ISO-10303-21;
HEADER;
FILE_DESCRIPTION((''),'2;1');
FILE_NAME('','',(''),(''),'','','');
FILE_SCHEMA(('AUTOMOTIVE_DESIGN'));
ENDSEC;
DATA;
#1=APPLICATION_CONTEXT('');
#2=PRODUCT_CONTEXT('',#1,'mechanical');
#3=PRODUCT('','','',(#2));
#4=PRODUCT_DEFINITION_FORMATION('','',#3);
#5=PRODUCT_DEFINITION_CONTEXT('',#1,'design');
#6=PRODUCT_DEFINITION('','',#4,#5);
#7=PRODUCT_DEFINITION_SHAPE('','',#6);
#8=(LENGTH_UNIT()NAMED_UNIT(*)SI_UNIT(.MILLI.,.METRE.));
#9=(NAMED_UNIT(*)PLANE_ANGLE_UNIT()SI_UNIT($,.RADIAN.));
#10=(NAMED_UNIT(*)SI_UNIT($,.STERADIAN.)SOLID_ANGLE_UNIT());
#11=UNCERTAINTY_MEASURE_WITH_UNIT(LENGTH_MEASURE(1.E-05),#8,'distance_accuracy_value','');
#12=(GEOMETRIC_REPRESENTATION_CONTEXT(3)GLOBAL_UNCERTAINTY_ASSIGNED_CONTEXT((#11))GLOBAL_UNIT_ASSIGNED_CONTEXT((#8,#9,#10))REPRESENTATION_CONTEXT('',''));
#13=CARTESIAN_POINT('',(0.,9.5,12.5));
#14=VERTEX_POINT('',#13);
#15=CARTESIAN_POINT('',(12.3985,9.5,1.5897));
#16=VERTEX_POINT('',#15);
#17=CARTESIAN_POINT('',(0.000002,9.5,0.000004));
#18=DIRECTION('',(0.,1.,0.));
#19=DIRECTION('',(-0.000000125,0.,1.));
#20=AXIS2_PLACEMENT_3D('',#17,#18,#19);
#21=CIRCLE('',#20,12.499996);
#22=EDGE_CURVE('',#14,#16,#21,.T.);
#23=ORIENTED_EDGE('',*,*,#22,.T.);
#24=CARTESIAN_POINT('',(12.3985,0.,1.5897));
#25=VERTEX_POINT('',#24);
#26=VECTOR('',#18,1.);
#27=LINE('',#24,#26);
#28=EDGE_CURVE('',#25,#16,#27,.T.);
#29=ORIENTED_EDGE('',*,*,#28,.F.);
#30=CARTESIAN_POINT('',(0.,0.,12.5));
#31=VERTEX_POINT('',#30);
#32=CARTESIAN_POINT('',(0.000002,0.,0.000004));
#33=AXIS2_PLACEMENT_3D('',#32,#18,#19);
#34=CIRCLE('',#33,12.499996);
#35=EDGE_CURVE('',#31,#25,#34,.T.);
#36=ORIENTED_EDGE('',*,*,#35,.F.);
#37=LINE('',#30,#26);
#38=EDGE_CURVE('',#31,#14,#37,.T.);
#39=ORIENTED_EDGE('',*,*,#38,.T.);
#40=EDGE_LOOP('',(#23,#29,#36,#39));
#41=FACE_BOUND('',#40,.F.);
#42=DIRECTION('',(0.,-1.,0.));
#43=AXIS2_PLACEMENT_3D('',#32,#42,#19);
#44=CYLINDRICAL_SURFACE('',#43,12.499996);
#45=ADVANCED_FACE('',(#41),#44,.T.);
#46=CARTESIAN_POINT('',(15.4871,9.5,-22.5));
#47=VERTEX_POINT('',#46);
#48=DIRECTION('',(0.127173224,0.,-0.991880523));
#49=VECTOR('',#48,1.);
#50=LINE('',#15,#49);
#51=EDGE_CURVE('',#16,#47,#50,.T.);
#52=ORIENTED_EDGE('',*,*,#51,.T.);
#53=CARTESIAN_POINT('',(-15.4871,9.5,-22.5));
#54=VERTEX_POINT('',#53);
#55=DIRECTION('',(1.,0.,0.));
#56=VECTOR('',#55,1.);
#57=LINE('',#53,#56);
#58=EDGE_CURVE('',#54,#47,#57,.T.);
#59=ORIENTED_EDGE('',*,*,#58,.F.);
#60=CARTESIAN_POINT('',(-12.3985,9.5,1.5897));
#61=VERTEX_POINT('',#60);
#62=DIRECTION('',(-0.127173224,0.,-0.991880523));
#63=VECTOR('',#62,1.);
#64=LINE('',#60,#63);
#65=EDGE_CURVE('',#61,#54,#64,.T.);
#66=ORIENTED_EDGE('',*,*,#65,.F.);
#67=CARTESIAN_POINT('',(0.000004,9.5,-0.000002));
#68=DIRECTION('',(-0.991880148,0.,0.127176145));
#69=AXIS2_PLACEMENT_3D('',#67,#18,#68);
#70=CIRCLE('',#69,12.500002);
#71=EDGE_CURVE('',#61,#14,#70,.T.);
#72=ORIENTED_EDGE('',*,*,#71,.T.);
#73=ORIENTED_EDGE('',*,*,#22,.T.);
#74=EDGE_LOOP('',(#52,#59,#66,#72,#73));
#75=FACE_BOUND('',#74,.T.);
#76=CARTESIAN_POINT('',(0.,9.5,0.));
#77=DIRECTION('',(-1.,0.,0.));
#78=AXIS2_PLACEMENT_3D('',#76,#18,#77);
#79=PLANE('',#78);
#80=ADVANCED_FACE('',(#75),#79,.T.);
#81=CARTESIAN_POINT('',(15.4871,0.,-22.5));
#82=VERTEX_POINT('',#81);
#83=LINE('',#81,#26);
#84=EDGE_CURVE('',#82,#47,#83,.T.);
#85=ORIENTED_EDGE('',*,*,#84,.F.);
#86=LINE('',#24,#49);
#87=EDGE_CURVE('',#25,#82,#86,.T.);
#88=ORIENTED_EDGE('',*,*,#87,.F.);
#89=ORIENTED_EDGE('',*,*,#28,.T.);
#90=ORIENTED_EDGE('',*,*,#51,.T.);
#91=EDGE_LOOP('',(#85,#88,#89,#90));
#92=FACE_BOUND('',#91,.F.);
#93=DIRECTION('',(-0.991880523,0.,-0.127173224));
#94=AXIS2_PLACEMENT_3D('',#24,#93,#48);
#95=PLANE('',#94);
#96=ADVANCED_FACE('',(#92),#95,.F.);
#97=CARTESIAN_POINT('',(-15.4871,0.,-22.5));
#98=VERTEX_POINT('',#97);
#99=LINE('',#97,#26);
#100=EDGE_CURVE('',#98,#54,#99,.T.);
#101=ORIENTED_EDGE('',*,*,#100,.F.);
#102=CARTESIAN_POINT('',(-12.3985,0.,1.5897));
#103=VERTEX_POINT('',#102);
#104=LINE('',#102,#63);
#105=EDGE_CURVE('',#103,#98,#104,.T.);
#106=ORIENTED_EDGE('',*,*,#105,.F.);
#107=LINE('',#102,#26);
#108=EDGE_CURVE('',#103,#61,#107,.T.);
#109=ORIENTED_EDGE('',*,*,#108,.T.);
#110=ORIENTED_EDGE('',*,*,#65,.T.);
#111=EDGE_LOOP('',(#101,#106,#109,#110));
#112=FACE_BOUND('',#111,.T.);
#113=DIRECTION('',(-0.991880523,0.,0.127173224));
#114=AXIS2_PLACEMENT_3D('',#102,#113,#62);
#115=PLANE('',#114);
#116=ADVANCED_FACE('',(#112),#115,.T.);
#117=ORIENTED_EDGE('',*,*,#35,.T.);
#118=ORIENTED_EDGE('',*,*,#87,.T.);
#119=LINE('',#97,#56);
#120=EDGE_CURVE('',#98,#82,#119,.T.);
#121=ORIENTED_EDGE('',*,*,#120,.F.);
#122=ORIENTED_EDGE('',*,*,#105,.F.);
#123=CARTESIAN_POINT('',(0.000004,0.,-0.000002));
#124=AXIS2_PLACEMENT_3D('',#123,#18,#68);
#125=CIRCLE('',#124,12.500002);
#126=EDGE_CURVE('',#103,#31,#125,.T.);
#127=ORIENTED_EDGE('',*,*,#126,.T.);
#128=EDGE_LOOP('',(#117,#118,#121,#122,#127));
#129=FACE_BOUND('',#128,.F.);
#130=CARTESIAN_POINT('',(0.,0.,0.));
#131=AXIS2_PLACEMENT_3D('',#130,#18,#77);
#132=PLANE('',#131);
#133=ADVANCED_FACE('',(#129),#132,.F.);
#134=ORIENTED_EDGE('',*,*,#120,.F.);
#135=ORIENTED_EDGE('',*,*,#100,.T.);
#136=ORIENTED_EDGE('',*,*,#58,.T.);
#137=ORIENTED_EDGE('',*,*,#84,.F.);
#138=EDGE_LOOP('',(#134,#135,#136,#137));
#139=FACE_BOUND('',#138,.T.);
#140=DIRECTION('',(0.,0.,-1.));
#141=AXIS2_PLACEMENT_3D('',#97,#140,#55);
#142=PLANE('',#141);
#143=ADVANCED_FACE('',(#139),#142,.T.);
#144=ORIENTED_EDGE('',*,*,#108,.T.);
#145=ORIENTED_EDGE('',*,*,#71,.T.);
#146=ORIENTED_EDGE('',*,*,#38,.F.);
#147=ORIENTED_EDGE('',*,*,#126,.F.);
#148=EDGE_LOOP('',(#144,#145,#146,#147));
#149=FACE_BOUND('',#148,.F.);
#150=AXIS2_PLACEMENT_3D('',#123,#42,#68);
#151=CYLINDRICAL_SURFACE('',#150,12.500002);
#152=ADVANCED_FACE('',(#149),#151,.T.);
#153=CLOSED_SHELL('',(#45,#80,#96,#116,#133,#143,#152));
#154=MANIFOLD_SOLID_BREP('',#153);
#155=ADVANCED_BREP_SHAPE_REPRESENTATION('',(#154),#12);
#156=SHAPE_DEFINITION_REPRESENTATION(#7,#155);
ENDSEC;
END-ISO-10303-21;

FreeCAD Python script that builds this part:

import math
import FreeCAD as App
import Part
import Sketcher
Q = App.Units.Quantity

doc = App.newDocument("Part")
body = doc.addObject("PartDesign::Body", "Body")

# Sketch on XZ plane
sketch1 = body.newObject("Sketcher::SketchObject", "Sketch")
sketch1.AttachmentSupport = (doc.getObject("XZ_Plane"), [""])
sketch1.MapMode = "FlatFace"
sketch1.addGeometry(Part.LineSegment(App.Vector(-15.487142, -22.499995, 0), App.Vector(-12.3985, 1.5897, 0)), False)
sketch1.addGeometry(Part.ArcOfCircle(Part.Circle(App.Vector(0, 0, 0), App.Vector(0, 0, 1), 12.5), math.radians(90), math.radians(172.693564)), False)
sketch1.addGeometry(Part.ArcOfCircle(Part.Circle(App.Vector(0, 0, 0), App.Vector(0, 0, 1), 12.499998), math.radians(7.306436), math.radians(90)), False)
sketch1.addGeometry(Part.LineSegment(App.Vector(12.3985, 1.5897, 0), App.Vector(15.487142, -22.499995, 0)), False)
sketch1.addGeometry(Part.LineSegment(App.Vector(15.4871, -22.5, 0), App.Vector(-15.4871, -22.5, 0)), False)
sketch1.addConstraint(Sketcher.Constraint("Tangent", 0, 2, 1, 2))
sketch1.addConstraint(Sketcher.Constraint("Tangent", 1, 1, 2, 2))
sketch1.addConstraint(Sketcher.Constraint("Tangent", 2, 1, 3, 1))
sketch1.addConstraint(Sketcher.Constraint("Coincident", 3, 2, 4, 1))
sketch1.addConstraint(Sketcher.Constraint("Coincident", 4, 2, 0, 1))
sketch1.addConstraint(Sketcher.Constraint("Horizontal", 4))
sketch1.addConstraint(Sketcher.Constraint("Coincident", 1, 3, -1, 1))
sketch1.addConstraint(Sketcher.Constraint("Equal", 1, 2))
sketch1.addConstraint(Sketcher.Constraint("PointOnObject", 1, 1, -2))
sketch1.addConstraint(Sketcher.Constraint("Horizontal", 0, 2, 2, 1))
sketch1.addConstraint(Sketcher.Constraint("Radius", 1, Q("12.5 mm")))
sketch1.addConstraint(Sketcher.Constraint("DistanceY", 3, 2, 1, 1, Q("35 mm")))
sketch1.addConstraint(Sketcher.Constraint("Distance", 0, Q("24.287 mm")))
pad1 = body.newObject("PartDesign::Pad", "Pad")
pad1.Profile = sketch1
pad1.Length = 9.5
pad1.Reversed = True

doc.recompute()
